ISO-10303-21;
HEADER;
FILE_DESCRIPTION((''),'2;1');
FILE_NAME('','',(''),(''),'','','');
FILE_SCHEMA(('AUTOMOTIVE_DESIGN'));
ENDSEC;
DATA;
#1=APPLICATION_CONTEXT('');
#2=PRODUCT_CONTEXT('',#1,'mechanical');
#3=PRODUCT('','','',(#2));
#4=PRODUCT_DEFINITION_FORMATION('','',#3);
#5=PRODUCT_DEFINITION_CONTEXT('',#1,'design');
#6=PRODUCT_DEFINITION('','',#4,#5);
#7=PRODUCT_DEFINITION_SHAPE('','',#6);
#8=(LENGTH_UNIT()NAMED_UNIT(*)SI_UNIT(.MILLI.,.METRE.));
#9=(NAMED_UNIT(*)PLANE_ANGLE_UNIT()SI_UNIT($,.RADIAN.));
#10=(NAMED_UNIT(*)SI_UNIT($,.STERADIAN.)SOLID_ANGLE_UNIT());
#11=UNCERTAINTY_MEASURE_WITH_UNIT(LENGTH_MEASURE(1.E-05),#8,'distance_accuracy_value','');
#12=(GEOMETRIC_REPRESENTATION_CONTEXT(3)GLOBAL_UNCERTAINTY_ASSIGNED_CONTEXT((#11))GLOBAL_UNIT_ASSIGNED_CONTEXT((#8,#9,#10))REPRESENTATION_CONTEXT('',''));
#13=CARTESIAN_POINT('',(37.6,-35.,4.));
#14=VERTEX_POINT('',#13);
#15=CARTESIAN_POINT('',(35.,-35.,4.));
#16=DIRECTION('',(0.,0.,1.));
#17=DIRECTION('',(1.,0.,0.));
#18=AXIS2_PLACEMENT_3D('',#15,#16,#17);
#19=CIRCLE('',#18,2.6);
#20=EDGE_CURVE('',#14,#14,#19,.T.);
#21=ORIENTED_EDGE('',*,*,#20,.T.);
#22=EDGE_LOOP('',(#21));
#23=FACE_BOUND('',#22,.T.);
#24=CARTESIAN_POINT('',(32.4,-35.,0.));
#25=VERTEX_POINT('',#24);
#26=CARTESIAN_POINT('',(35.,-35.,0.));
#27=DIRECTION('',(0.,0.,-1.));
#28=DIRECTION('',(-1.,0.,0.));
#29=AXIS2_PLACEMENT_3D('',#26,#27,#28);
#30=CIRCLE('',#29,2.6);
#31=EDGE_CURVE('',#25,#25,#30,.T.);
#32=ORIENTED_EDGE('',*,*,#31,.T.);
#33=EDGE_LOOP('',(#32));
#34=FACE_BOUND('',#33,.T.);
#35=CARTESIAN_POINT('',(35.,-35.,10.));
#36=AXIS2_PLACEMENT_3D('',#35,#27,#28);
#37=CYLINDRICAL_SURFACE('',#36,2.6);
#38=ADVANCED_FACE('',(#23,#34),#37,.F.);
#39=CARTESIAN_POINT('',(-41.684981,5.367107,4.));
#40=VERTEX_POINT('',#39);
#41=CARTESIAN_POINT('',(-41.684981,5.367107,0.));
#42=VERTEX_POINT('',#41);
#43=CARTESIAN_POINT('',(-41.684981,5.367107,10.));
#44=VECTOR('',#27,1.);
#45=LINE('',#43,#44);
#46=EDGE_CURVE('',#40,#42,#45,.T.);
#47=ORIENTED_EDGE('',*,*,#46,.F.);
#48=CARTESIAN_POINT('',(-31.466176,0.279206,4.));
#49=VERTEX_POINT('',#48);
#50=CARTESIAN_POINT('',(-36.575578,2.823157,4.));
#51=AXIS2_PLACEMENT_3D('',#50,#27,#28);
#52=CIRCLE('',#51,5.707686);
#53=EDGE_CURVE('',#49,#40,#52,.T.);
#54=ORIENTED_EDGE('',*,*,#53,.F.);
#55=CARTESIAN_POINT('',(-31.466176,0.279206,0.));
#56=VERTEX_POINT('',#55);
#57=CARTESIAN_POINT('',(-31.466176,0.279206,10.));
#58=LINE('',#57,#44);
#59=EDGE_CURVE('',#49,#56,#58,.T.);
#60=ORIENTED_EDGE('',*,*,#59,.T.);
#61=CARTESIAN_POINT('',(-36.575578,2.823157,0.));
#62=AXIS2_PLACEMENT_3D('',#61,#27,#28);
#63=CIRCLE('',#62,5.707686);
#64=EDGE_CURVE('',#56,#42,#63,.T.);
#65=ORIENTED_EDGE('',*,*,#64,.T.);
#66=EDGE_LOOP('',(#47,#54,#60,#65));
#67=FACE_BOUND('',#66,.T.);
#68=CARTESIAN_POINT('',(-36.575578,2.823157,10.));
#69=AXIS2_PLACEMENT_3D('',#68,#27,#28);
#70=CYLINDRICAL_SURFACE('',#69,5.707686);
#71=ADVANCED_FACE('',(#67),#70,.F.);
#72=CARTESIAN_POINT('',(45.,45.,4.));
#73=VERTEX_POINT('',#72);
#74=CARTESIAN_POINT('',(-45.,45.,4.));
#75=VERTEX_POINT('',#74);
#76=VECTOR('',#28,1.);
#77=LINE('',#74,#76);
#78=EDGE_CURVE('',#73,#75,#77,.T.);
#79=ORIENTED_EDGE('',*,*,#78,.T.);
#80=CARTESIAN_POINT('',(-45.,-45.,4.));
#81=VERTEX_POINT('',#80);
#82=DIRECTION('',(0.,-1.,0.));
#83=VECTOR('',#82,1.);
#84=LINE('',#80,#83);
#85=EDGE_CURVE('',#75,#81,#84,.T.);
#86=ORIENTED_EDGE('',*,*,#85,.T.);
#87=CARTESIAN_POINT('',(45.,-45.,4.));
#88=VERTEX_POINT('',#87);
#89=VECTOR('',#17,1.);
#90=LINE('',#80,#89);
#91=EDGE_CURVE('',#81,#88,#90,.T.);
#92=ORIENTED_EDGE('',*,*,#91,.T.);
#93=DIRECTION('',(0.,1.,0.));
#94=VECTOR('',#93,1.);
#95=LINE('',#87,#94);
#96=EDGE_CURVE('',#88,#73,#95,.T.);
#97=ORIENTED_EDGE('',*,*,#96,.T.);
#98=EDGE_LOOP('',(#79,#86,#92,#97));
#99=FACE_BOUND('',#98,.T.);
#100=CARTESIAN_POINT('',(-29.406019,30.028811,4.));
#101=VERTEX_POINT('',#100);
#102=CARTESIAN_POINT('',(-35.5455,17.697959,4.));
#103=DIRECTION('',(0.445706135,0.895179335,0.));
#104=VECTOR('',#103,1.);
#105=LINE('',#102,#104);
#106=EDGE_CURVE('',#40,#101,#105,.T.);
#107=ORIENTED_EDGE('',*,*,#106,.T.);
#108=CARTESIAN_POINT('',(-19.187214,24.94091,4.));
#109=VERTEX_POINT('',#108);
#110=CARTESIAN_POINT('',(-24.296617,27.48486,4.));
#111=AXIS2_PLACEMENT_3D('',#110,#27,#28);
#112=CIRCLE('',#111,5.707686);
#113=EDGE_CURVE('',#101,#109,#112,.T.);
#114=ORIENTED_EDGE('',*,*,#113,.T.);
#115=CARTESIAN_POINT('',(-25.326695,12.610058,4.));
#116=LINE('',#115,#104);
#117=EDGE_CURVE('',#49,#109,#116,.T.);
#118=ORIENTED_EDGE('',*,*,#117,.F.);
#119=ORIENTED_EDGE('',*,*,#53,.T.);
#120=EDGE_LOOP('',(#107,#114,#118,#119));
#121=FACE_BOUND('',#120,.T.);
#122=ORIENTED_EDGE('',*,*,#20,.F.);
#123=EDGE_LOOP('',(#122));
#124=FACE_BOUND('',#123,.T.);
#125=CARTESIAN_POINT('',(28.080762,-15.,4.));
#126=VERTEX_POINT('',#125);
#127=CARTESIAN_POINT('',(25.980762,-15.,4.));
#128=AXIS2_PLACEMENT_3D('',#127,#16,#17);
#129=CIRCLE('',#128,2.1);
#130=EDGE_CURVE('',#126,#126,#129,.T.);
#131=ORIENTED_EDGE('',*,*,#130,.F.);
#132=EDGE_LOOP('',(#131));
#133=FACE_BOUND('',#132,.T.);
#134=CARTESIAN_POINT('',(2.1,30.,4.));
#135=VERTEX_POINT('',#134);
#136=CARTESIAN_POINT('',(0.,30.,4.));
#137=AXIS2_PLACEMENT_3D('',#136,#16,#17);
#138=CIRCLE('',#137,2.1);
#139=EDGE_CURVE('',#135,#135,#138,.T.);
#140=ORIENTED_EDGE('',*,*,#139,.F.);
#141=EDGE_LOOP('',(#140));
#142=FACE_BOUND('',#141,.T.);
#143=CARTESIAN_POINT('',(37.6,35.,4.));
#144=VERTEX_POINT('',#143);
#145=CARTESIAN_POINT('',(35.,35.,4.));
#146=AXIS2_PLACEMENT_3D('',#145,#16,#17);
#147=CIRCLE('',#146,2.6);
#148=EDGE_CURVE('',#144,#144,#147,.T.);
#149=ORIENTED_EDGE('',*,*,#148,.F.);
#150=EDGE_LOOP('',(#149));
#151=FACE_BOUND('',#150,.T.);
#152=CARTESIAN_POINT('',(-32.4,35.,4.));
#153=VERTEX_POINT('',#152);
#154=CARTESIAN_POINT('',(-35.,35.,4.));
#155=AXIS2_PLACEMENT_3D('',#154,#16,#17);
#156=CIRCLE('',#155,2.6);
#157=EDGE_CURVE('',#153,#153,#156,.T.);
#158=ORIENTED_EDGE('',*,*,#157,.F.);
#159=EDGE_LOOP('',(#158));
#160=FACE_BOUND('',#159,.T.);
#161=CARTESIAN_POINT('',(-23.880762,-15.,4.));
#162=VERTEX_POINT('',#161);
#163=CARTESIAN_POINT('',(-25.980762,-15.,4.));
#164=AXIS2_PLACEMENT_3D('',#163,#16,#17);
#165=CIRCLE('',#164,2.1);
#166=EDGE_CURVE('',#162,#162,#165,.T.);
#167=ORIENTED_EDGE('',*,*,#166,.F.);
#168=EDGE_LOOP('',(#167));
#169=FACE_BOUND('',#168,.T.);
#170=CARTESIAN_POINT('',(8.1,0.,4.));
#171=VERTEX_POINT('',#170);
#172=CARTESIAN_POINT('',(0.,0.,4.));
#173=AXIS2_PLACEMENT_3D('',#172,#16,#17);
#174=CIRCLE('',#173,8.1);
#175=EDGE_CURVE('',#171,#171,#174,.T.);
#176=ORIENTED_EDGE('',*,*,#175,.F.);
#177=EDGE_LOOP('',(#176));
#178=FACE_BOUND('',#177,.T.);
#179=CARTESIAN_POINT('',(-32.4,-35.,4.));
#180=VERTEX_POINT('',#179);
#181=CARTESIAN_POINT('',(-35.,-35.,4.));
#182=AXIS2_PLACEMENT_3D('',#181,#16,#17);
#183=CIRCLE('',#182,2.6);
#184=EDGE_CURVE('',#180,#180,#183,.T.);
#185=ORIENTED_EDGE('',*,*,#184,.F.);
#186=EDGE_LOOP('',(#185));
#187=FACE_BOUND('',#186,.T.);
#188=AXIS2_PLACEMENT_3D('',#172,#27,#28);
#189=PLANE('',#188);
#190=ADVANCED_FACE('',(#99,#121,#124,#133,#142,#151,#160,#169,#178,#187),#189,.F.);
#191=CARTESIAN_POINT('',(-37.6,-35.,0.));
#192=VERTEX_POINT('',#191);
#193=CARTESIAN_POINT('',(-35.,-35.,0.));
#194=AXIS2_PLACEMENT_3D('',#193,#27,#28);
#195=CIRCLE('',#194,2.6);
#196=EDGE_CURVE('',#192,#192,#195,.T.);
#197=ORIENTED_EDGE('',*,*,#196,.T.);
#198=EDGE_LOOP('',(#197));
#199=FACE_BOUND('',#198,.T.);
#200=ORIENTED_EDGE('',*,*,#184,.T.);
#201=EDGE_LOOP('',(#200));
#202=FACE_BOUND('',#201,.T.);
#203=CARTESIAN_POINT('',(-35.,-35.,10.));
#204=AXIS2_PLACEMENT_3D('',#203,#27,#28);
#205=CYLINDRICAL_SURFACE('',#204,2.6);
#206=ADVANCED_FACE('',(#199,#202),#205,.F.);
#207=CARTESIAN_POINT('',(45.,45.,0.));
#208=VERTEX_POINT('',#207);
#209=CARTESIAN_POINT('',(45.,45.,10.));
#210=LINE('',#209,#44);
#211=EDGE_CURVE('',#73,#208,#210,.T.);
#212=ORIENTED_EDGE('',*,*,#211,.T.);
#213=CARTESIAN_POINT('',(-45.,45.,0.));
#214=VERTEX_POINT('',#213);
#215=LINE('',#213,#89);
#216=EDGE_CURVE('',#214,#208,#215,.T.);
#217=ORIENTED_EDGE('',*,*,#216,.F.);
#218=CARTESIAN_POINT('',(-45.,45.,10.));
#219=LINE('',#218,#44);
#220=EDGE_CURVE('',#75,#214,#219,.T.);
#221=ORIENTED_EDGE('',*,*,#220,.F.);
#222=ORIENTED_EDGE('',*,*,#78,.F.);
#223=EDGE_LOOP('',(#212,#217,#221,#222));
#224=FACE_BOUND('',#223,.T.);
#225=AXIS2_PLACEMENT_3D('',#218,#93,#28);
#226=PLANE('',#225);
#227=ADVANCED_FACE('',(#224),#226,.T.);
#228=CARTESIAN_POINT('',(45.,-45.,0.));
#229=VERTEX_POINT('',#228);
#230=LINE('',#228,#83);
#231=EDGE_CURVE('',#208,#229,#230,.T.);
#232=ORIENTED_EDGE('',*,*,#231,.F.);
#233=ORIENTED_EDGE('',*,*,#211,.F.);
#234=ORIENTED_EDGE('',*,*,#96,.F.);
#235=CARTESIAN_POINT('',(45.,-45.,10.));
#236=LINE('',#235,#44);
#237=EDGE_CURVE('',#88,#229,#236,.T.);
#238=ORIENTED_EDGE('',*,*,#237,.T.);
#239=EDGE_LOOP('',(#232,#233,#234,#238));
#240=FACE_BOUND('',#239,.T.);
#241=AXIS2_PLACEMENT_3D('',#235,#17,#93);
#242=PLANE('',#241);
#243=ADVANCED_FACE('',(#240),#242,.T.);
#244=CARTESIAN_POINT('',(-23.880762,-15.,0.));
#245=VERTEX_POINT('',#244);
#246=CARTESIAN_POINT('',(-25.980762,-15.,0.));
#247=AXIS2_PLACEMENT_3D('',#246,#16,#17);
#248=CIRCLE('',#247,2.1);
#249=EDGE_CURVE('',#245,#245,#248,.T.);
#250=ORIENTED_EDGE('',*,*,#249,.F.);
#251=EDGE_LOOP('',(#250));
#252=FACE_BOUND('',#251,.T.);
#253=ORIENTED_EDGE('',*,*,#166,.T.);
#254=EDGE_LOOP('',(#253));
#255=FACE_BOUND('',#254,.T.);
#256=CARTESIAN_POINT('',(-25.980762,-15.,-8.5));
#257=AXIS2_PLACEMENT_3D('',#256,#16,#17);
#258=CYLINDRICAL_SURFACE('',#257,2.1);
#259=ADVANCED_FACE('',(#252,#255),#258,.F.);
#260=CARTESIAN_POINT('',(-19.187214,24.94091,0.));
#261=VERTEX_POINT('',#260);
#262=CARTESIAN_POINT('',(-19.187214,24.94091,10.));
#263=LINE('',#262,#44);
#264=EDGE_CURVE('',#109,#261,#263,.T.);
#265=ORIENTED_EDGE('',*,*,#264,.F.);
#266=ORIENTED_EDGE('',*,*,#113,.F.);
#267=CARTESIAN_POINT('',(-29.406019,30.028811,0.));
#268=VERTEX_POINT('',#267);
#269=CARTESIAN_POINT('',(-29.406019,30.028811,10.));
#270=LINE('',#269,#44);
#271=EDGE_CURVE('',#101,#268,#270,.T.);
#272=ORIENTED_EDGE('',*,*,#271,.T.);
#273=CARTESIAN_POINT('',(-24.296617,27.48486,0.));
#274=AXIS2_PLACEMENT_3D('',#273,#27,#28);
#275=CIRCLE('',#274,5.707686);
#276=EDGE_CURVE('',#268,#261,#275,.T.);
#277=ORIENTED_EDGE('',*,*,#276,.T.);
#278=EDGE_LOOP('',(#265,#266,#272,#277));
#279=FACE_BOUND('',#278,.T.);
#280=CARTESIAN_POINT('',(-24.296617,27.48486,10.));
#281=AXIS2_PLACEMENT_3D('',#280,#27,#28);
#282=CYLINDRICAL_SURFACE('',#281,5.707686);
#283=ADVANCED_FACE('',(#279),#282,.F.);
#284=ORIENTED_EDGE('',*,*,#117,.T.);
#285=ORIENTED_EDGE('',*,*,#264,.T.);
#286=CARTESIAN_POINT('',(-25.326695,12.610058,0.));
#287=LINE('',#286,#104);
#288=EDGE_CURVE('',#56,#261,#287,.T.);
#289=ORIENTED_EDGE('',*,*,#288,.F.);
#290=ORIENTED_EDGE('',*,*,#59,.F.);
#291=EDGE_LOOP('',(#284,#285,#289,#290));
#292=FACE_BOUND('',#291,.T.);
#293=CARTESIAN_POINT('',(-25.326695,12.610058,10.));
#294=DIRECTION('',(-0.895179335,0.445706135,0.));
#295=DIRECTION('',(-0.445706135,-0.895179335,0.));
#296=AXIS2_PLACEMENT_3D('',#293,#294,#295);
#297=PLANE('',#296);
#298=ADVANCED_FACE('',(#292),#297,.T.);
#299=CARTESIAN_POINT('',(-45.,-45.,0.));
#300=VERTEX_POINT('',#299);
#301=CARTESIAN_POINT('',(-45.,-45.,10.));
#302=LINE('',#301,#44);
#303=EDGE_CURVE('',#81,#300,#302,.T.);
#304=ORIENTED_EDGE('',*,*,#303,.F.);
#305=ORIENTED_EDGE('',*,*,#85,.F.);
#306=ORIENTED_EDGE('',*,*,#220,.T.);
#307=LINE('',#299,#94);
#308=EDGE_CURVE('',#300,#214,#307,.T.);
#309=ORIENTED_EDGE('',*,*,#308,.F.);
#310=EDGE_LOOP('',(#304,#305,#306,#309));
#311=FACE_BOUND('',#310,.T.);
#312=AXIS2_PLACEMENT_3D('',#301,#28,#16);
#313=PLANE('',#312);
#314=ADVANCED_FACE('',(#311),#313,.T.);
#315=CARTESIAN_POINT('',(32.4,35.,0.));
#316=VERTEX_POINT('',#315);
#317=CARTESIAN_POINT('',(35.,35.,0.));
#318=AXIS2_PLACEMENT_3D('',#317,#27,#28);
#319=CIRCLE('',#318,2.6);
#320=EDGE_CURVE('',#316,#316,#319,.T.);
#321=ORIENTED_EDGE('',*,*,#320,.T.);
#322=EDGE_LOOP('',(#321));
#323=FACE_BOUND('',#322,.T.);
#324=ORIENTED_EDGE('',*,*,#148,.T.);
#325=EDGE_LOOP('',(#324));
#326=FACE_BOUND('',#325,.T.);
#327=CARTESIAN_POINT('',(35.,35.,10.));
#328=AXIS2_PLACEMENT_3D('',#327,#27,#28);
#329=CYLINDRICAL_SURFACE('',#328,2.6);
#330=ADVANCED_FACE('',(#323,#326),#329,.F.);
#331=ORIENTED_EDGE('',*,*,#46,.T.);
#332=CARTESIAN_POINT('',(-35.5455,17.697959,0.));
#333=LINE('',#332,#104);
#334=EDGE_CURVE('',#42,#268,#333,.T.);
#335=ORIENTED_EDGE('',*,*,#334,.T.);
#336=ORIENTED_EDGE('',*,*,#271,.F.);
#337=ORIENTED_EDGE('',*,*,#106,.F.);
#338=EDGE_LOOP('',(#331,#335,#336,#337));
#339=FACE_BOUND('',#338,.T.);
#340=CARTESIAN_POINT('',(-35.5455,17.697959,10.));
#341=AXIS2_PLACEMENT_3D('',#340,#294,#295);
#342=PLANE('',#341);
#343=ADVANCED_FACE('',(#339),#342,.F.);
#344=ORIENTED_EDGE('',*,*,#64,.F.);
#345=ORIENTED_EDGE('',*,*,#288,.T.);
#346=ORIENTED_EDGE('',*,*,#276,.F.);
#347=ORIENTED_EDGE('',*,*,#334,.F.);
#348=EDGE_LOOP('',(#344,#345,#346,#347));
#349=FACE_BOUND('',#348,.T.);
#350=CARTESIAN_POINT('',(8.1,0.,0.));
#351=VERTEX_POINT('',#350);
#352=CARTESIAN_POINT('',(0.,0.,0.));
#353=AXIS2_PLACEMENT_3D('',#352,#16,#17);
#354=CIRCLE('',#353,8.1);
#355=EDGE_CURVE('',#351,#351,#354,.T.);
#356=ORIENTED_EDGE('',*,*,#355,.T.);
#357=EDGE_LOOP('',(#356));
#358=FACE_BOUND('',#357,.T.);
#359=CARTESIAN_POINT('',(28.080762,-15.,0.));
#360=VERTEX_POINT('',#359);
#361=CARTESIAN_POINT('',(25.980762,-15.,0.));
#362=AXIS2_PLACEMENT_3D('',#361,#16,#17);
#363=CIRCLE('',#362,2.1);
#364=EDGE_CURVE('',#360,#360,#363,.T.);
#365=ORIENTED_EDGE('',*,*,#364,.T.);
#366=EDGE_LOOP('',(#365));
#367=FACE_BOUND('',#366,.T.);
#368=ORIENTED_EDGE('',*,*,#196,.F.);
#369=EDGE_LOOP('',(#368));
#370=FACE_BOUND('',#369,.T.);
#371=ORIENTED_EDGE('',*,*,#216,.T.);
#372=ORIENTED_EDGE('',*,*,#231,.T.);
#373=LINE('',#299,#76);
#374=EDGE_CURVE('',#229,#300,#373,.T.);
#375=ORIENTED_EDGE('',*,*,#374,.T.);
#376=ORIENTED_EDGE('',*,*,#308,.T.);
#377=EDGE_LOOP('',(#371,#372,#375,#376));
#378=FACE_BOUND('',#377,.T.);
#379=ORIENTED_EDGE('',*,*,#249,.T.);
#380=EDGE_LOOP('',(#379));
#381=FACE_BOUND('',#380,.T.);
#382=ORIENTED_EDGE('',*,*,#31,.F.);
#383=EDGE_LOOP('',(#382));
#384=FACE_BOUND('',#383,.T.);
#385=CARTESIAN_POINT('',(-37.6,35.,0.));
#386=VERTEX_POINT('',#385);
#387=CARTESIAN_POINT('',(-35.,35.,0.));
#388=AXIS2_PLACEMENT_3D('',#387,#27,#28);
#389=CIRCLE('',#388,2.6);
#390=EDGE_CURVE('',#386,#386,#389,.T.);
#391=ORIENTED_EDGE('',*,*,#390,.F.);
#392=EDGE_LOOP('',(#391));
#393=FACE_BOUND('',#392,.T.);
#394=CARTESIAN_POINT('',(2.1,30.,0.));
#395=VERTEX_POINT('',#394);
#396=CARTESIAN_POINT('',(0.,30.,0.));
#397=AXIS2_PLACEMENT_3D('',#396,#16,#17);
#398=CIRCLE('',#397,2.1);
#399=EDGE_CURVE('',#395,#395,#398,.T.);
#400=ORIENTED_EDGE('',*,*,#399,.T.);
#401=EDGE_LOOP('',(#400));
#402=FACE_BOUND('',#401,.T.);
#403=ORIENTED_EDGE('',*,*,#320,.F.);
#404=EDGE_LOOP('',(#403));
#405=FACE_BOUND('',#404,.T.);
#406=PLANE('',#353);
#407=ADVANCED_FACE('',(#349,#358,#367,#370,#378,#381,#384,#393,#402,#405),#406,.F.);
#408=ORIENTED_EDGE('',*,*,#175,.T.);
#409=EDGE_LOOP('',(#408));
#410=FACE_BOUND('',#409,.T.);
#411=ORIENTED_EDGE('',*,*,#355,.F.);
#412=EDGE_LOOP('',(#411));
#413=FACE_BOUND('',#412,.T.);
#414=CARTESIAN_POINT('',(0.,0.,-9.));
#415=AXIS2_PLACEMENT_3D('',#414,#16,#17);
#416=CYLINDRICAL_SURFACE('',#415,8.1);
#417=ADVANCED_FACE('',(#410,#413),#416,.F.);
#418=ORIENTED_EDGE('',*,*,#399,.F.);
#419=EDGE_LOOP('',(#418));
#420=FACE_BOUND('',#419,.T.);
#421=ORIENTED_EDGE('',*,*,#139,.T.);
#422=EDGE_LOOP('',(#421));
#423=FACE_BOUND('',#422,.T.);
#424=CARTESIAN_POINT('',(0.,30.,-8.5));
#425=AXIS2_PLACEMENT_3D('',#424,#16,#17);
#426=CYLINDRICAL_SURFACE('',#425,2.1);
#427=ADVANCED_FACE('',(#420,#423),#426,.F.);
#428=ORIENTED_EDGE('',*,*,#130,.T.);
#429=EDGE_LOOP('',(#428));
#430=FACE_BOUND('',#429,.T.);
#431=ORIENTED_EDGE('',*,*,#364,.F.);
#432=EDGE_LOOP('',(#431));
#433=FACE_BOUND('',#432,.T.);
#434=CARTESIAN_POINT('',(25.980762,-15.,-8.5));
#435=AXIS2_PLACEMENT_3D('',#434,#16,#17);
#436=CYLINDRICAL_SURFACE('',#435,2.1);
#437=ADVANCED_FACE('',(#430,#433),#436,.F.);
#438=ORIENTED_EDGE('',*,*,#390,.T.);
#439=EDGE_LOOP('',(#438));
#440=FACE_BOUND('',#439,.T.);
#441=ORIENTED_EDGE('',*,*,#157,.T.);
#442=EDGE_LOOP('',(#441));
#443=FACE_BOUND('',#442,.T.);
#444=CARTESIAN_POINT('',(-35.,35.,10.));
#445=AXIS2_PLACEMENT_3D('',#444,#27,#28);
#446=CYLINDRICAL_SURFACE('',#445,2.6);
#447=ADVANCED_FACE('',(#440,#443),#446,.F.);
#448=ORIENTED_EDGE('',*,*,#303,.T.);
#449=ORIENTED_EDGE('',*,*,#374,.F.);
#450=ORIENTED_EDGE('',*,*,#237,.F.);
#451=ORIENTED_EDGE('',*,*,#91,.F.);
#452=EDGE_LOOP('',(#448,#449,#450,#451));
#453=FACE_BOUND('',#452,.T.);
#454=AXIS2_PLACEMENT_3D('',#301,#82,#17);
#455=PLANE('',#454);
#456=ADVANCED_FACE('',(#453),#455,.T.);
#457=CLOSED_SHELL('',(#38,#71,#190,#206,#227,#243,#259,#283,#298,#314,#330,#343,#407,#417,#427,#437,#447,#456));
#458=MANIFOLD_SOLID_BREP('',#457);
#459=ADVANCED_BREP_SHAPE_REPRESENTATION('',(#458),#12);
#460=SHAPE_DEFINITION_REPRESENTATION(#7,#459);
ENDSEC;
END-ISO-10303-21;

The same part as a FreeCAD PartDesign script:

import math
import FreeCAD as App
import Part
import Sketcher
Q = App.Units.Quantity

doc = App.newDocument("Part")
body = doc.addObject("PartDesign::Body", "Body")

sketch1 = body.newObject("Sketcher::SketchObject", "Sketch")
sketch1.AttachmentSupport = (doc.getObject("XY_Plane"), [""])
sketch1.MapMode = "FlatFace"
sketch1.addGeometry([
    Part.LineSegment(App.Vector(-40, 40, 0), App.Vector(-40, -40, 0)),
    Part.LineSegment(App.Vector(-40, -40, 0), App.Vector(40, -40, 0)),
    Part.LineSegment(App.Vector(40, -40, 0), App.Vector(40, 40, 0)),
    Part.LineSegment(App.Vector(40, 40, 0), App.Vector(-40, 40, 0)),
    Part.Circle(App.Vector(-33, -33, 0), App.Vector(0, 0, 1), 2.5),
    Part.Circle(App.Vector(33, -30.5, 0), App.Vector(0, 0, 1), 2.5),
    Part.Circle(App.Vector(-33, 33, 0), App.Vector(0, 0, 1), 2.5),
    Part.Circle(App.Vector(0, 0, 0), App.Vector(0, 0, 1), 8),
    Part.Circle(App.Vector(33, 33, 0), App.Vector(0, 0, 1), 2.5),
], False)
sketch1.addConstraint([
    Sketcher.Constraint("Coincident", 0, 2, 1, 1),
    Sketcher.Constraint("Coincident", 1, 2, 2, 1),
    Sketcher.Constraint("Coincident", 2, 2, 3, 1),
    Sketcher.Constraint("Coincident", 3, 2, 0, 1),
    Sketcher.Constraint("Vertical", 0),
    Sketcher.Constraint("Horizontal", 1),
    Sketcher.Constraint("Vertical", 2),
    Sketcher.Constraint("Horizontal", 3),
    Sketcher.Constraint("Coincident", 7, 3, -1, 1),
    Sketcher.Constraint("Equal", 4, 5),
    Sketcher.Constraint("Equal", 5, 6),
    Sketcher.Constraint("Equal", 6, 8),
    Sketcher.Constraint("Symmetric", 4, 3, 8, 3, -1, 1),
    Sketcher.Constraint("Symmetric", 0, 2, 2, 2, -1, 1),
    Sketcher.Constraint("Symmetric", 6, 3, 8, 3, -2),
    Sketcher.Constraint("Vertical", 5, 3, 8, 3),
    Sketcher.Constraint("Equal", 3, 0),
    Sketcher.Constraint("Diameter", 4, Q("5 mm")),
    Sketcher.Constraint("Diameter", 7, Q("16 mm")),
    Sketcher.Constraint("DistanceX", 1, 1, 1, 2, Q("80 mm")),
    Sketcher.Constraint("DistanceX", 4, 3, -1, 1, Q("33 mm")),
    Sketcher.Constraint("DistanceY", 4, 3, -1, 1, Q("33 mm")),
    Sketcher.Constraint("DistanceY", 5, 3, -1, 1, Q("30.5 mm")),
])
pad1 = body.newObject("PartDesign::Pad", "Pad")
pad1.Profile = sketch1
pad1.Length = 2

sketch2 = body.newObject("Sketcher::SketchObject", "Sketch001")
sketch2.AttachmentSupport = (doc.getObject("XY_Plane"), [""])
sketch2.MapMode = "FlatFace"
sketch2.AttachmentOffset = App.Placement(App.Vector(0, 0, 2), App.Rotation())
sketch2.addGeometry(Part.Circle(App.Vector(0, 0, 0), App.Vector(0, 0, 1), 34), False)
sketch2.addConstraint([
    Sketcher.Constraint("Coincident", 0, 3, -1, 1),
    Sketcher.Constraint("Diameter", 0, Q("68 mm")),
])
pocket1 = body.newObject("PartDesign::Pocket", "Pocket")
pocket1.Profile = sketch2
pocket1.Length = 0.5

sketch3 = body.newObject("Sketcher::SketchObject", "Sketch002")
sketch3.AttachmentSupport = (doc.getObject("XY_Plane"), [""])
sketch3.MapMode = "FlatFace"
sketch3.AttachmentOffset = App.Placement(App.Vector(0, 0, 1.5), App.Rotation())
sketch3.addGeometry([
    Part.Circle(App.Vector(0, 30, 0), App.Vector(0, 0, 1), 2),
    Part.Circle(App.Vector(25.980762, -15, 0), App.Vector(0, 0, 1), 2),
    Part.Circle(App.Vector(-25.980762, -15, 0), App.Vector(0, 0, 1), 2),
], False)
sketch3.addConstraint([
    Sketcher.Constraint("Equal", 0, 1),
    Sketcher.Constraint("Equal", 1, 2),
    Sketcher.Constraint("Symmetric", 1, 3, 2, 3, -2),
    Sketcher.Constraint("PointOnObject", 0, 3, -2),
    Sketcher.Constraint("Diameter", 0, Q("4 mm")),
    Sketcher.Constraint("DistanceY", -1, 1, 0, 3, Q("30 mm")),
    Sketcher.Constraint("DistanceY", 1, 3, -1, 1, Q("15 mm")),
    Sketcher.Constraint("DistanceX", -1, 1, 1, 3, Q("25.980762 mm")),
])
pocket2 = body.newObject("PartDesign::Pocket", "Pocket001")
pocket2.Profile = sketch3
pocket2.Length = 28.5

sketch4 = body.newObject("Sketcher::SketchObject", "Sketch003")
sketch4.AttachmentSupport = (doc.getObject("XY_Plane"), [""])
sketch4.MapMode = "FlatFace"
sketch4.AttachmentOffset = App.Placement(App.Vector(0, 0, 1.5), App.Rotation())
sketch4.addGeometry([
    Part.Circle(App.Vector(25.980762, -15, 0), App.Vector(0, 0, 1), 2.1),
    Part.Circle(App.Vector(0, 30, 0), App.Vector(0, 0, 1), 2.1),
    Part.Circle(App.Vector(-25.980762, -15, 0), App.Vector(0, 0, 1), 2.1),
], False)
sketch4.addConstraint([
    Sketcher.Constraint("Equal", 0, 1),
    Sketcher.Constraint("Equal", 1, 2),
    Sketcher.Constraint("Symmetric", 0, 3, 2, 3, -2),
    Sketcher.Constraint("PointOnObject", 1, 3, -2),
    Sketcher.Constraint("Diameter", 0, Q("4.2 mm")),
    Sketcher.Constraint("DistanceY", 0, 3, -1, 1, Q("15 mm")),
    Sketcher.Constraint("DistanceY", -1, 1, 1, 3, Q("30 mm")),
    Sketcher.Constraint("DistanceX", -1, 1, 0, 3, Q("25.980762 mm")),
])
pocket3 = body.newObject("PartDesign::Pocket", "Pocket002")
pocket3.Profile = sketch4
pocket3.Length = 10

sketch5 = body.newObject("Sketcher::SketchObject", "Sketch004")
sketch5.AttachmentSupport = (doc.getObject("XY_Plane"), [""])
sketch5.MapMode = "FlatFace"
sketch5.AttachmentOffset = App.Placement(App.Vector(0, 0, 2), App.Rotation())
sketch5.addGeometry([
    Part.Circle(App.Vector(-33, 33, 0), App.Vector(0, 0, 1), 2.6),
    Part.Circle(App.Vector(33, 33, 0), App.Vector(0, 0, 1), 2.6),
    Part.Circle(App.Vector(33, -30.5, 0), App.Vector(0, 0, 1), 2.6),
    Part.Circle(App.Vector(-33, -33, 0), App.Vector(0, 0, 1), 2.6),
], False)
sketch5.addConstraint([
    Sketcher.Constraint("Equal", 0, 1),
    Sketcher.Constraint("Equal", 1, 2),
    Sketcher.Constraint("Equal", 2, 3),
    Sketcher.Constraint("Symmetric", 1, 3, 3, 3, -1, 1),
    Sketcher.Constraint("Symmetric", 0, 3, 1, 3, -2),
    Sketcher.Constraint("Vertical", 1, 3, 2, 3),
    Sketcher.Constraint("Diameter", 0, Q("5.2 mm")),
    Sketcher.Constraint("DistanceX", 0, 3, -1, 1, Q("33 mm")),
    Sketcher.Constraint("DistanceY", -1, 1, 0, 3, Q("33 mm")),
    Sketcher.Constraint("DistanceY", 2, 3, -1, 1, Q("30.5 mm")),
])
pocket4 = body.newObject("PartDesign::Pocket", "Pocket003")
pocket4.Profile = sketch5
pocket4.Length = 10

sketch6 = body.newObject("Sketcher::SketchObject", "Sketch005")
sketch6.AttachmentSupport = (doc.getObject("XY_Plane"), [""])
sketch6.MapMode = "FlatFace"
sketch6.addGeometry([
    Part.LineSegment(App.Vector(62.5, 62.5, 0), App.Vector(62.5, -62.5, 0)),
    Part.LineSegment(App.Vector(62.5, -62.5, 0), App.Vector(-62.5, -62.5, 0)),
    Part.LineSegment(App.Vector(-62.5, -62.5, 0), App.Vector(-62.5, 62.5, 0)),
    Part.LineSegment(App.Vector(-62.5, 62.5, 0), App.Vector(62.5, 62.5, 0)),
    Part.LineSegment(App.Vector(-40, -40, 0), App.Vector(40, -40, 0)),
    Part.LineSegment(App.Vector(40, -40, 0), App.Vector(40, 40, 0)),
    Part.LineSegment(App.Vector(40, 40, 0), App.Vector(-40, 40, 0)),
    Part.LineSegment(App.Vector(-40, 40, 0), App.Vector(-40, -40, 0)),
], False)
sketch6.addConstraint([
    Sketcher.Constraint("Coincident", 0, 2, 1, 1),
    Sketcher.Constraint("Coincident", 1, 2, 2, 1),
    Sketcher.Constraint("Coincident", 2, 2, 3, 1),
    Sketcher.Constraint("Coincident", 3, 2, 0, 1),
    Sketcher.Constraint("Coincident", 4, 2, 5, 1),
    Sketcher.Constraint("Coincident", 5, 2, 6, 1),
    Sketcher.Constraint("Coincident", 6, 2, 7, 1),
    Sketcher.Constraint("Coincident", 7, 2, 4, 1),
    Sketcher.Constraint("Vertical", 0),
    Sketcher.Constraint("Horizontal", 1),
    Sketcher.Constraint("Vertical", 2),
    Sketcher.Constraint("Horizontal", 3),
    Sketcher.Constraint("Horizontal", 4),
    Sketcher.Constraint("Vertical", 5),
    Sketcher.Constraint("Horizontal", 6),
    Sketcher.Constraint("Vertical", 7),
    Sketcher.Constraint("Symmetric", 0, 2, 2, 2, -1, 1),
    Sketcher.Constraint("Symmetric", 4, 2, 6, 2, -1, 1),
    Sketcher.Constraint("Equal", 3, 0),
    Sketcher.Constraint("Equal", 6, 5),
    Sketcher.Constraint("DistanceX", 1, 2, 1, 1, Q("125 mm")),
    Sketcher.Constraint("DistanceX", 4, 1, 4, 2, Q("80 mm")),
])
pad2 = body.newObject("PartDesign::Pad", "Pad001")
pad2.Profile = sketch6
pad2.Length = 2

sketch7 = body.newObject("Sketcher::SketchObject", "Sketch006")
sketch7.AttachmentSupport = (doc.getObject("XY_Plane"), [""])
sketch7.MapMode = "FlatFace"
sketch7.addGeometry(Part.Circle(App.Vector(33, -30.5, 0), App.Vector(0, 0, 1), 2.760888), False)
sketch7.addConstraint([
    Sketcher.Constraint("DistanceX", -1, 1, 0, 3, Q("33 mm")),
    Sketcher.Constraint("DistanceY", 0, 3, -1, 1, Q("30.5 mm")),
    Sketcher.Constraint("Diameter", 0, Q("5.521776 mm")),
])
pad3 = body.newObject("PartDesign::Pad", "Pad002")
pad3.Profile = sketch7
pad3.Length = 2

sketch8 = body.newObject("Sketcher::SketchObject", "Sketch007")
sketch8.AttachmentSupport = (doc.getObject("XY_Plane"), [""])
sketch8.MapMode = "FlatFace"
sketch8.addGeometry(Part.Circle(App.Vector(33, -34.063377, 0), App.Vector(0, 0, 1), 2.6), False)
sketch8.addConstraint([
    Sketcher.Constraint("Diameter", 0, Q("5.2 mm")),
    Sketcher.Constraint("DistanceX", -1, 1, 0, 3, Q("33 mm")),
    Sketcher.Constraint("DistanceY", 0, 3, -1, 1, Q("34.063377 mm")),
])
pocket5 = body.newObject("PartDesign::Pocket", "Pocket004")
pocket5.Profile = sketch8
pocket5.Length = 2
pocket5.Reversed = True

sketch9 = body.newObject("Sketcher::SketchObject", "Sketch008")
sketch9.AttachmentSupport = (doc.getObject("XY_Plane"), [""])
sketch9.MapMode = "FlatFace"
sketch9.addGeometry([
    Part.LineSegment(App.Vector(13.580084, -47.982964, 0), App.Vector(-13.580084, -47.982964, 0)),
    Part.ArcOfCircle(Part.Circle(App.Vector(-13.580084, -41.079754, 0), App.Vector(0, 0, 1), 6.903209), math.radians(90), math.radians(270)),
    Part.LineSegment(App.Vector(-13.580084, -34.176545, 0), App.Vector(13.580084, -34.176545, 0)),
    Part.ArcOfCircle(Part.Circle(App.Vector(13.580084, -41.079754, 0), App.Vector(0, 0, 1), 6.903209), math.radians(-90), math.radians(90)),
], False)
sketch9.addConstraint([
    Sketcher.Constraint("Tangent", 0, 2, 1, 2),
    Sketcher.Constraint("Tangent", 1, 1, 2, 1),
    Sketcher.Constraint("Tangent", 2, 2, 3, 2),
    Sketcher.Constraint("Tangent", 3, 1, 0, 1),
    Sketcher.Constraint("Horizontal", 0),
    Sketcher.Constraint("Horizontal", 2),
    Sketcher.Constraint("Radius", 1, Q("6.903209 mm")),
    Sketcher.Constraint("DistanceX", 0, 2, 0, 1, Q("27.160168 mm")),
    Sketcher.Constraint("DistanceX", 1, 3, -1, 1, Q("13.580084 mm")),
    Sketcher.Constraint("DistanceY", 1, 3, -1, 1, Q("41.079754 mm")),
])
pocket6 = body.newObject("PartDesign::Pocket", "Pocket005")
pocket6.Profile = sketch9
pocket6.Length = 2
pocket6.Reversed = True

sketch10 = body.newObject("Sketcher::SketchObject", "Sketch009")
sketch10.AttachmentSupport = (doc.getObject("XY_Plane"), [""])
sketch10.MapMode = "FlatFace"
sketch10.AttachmentOffset = App.Placement(App.Vector(0, 0, 2), App.Rotation())
sketch10.addGeometry([
    Part.LineSegment(App.Vector(125, 125, 0), App.Vector(125, -125, 0)),
    Part.LineSegment(App.Vector(125, -125, 0), App.Vector(-125, -125, 0)),
    Part.LineSegment(App.Vector(-125, -125, 0), App.Vector(-125, 125, 0)),
    Part.LineSegment(App.Vector(-125, 125, 0), App.Vector(125, 125, 0)),
    Part.Circle(App.Vector(25.980762, -15, 0), App.Vector(0, 0, 1), 2.1),
    Part.Circle(App.Vector(-25.980762, -15, 0), App.Vector(0, 0, 1), 2.1),
    Part.Circle(App.Vector(0, 0, 0), App.Vector(0, 0, 1), 8),
    Part.Circle(App.Vector(0, 30, 0), App.Vector(0, 0, 1), 2.1),
], False)
sketch10.addConstraint([
    Sketcher.Constraint("Coincident", 0, 2, 1, 1),
    Sketcher.Constraint("Coincident", 1, 2, 2, 1),
    Sketcher.Constraint("Coincident", 2, 2, 3, 1),
    Sketcher.Constraint("Coincident", 3, 2, 0, 1),
    Sketcher.Constraint("Vertical", 0),
    Sketcher.Constraint("Horizontal", 1),
    Sketcher.Constraint("Vertical", 2),
    Sketcher.Constraint("Horizontal", 3),
    Sketcher.Constraint("Coincident", 6, 3, -1, 1),
    Sketcher.Constraint("Equal", 4, 5),
    Sketcher.Constraint("Equal", 5, 7),
    Sketcher.Constraint("Symmetric", 0, 2, 2, 2, -1, 1),
    Sketcher.Constraint("Symmetric", 4, 3, 5, 3, -2),
    Sketcher.Constraint("PointOnObject", 7, 3, -2),
    Sketcher.Constraint("Equal", 3, 0),
    Sketcher.Constraint("Diameter", 6, Q("16 mm")),
    Sketcher.Constraint("Diameter", 4, Q("4.2 mm")),
    Sketcher.Constraint("DistanceX", 1, 2, 1, 1, Q("250 mm")),
    Sketcher.Constraint("DistanceY", 4, 3, -1, 1, Q("15 mm")),
    Sketcher.Constraint("DistanceY", -1, 1, 7, 3, Q("30 mm")),
    Sketcher.Constraint("DistanceX", -1, 1, 4, 3, Q("25.980762 mm")),
])
pad4 = body.newObject("PartDesign::Pad", "Pad003")
pad4.Profile = sketch10
pad4.Length = 2
pad4.Reversed = True

sketch11 = body.newObject("Sketcher::SketchObject", "Sketch010")
sketch11.AttachmentSupport = (doc.getObject("XY_Plane"), [""])
sketch11.MapMode = "FlatFace"
sketch11.addGeometry([
    Part.Circle(App.Vector(105, 105, 0), App.Vector(0, 0, 1), 2.6),
    Part.Circle(App.Vector(-105, 105, 0), App.Vector(0, 0, 1), 2.6),
    Part.Circle(App.Vector(105, -105, 0), App.Vector(0, 0, 1), 2.6),
    Part.Circle(App.Vector(-105, -98.771678, 0), App.Vector(0, 0, 1), 2.6),
], False)
sketch11.addConstraint([
    Sketcher.Constraint("Equal", 0, 1),
    Sketcher.Constraint("Equal", 1, 2),
    Sketcher.Constraint("Equal", 2, 3),
    Sketcher.Constraint("Symmetric", 1, 3, 2, 3, -1, 1),
    Sketcher.Constraint("Symmetric", 0, 3, 1, 3, -2),
    Sketcher.Constraint("Vertical", 1, 3, 3, 3),
    Sketcher.Constraint("Diameter", 0, Q("5.2 mm")),
    Sketcher.Constraint("DistanceX", -1, 1, 0, 3, Q("105 mm")),
    Sketcher.Constraint("DistanceY", -1, 1, 0, 3, Q("105 mm")),
    Sketcher.Constraint("DistanceY", 3, 3, -1, 1, Q("98.771678 mm")),
])
pocket7 = body.newObject("PartDesign::Pocket", "Pocket006")
pocket7.Profile = sketch11
pocket7.Length = 51
pocket7.Reversed = True

sketch12 = body.newObject("Sketcher::SketchObject", "Sketch011")
sketch12.AttachmentSupport = (doc.getObject("XY_Plane"), [""])
sketch12.MapMode = "FlatFace"
sketch12.AttachmentOffset = App.Placement(App.Vector(0, 0, 2), App.Rotation())
sketch12.addGeometry(Part.Circle(App.Vector(0, 0, 0), App.Vector(0, 0, 1), 34), False)
sketch12.addConstraint([
    Sketcher.Constraint("Coincident", 0, 3, -1, 1),
    Sketcher.Constraint("Diameter", 0, Q("68 mm")),
])
pocket8 = body.newObject("PartDesign::Pocket", "Pocket007")
pocket8.Profile = sketch12
pocket8.Length = 1

sketch13 = body.newObject("Sketcher::SketchObject", "Sketch012")
sketch13.AttachmentSupport = (doc.getObject("XY_Plane"), [""])
sketch13.MapMode = "FlatFace"
sketch13.addGeometry([
    Part.LineSegment(App.Vector(125, 125, 0), App.Vector(125, -125, 0)),
    Part.LineSegment(App.Vector(125, -125, 0), App.Vector(-125, -125, 0)),
    Part.LineSegment(App.Vector(-125, -125, 0), App.Vector(-125, 125, 0)),
    Part.LineSegment(App.Vector(-125, 125, 0), App.Vector(125, 125, 0)),
    Part.LineSegment(App.Vector(-45, -45, 0), App.Vector(45, -45, 0)),
    Part.LineSegment(App.Vector(45, -45, 0), App.Vector(45, 45, 0)),
    Part.LineSegment(App.Vector(45, 45, 0), App.Vector(-45, 45, 0)),
    Part.LineSegment(App.Vector(-45, 45, 0), App.Vector(-45, -45, 0)),
], False)
sketch13.addConstraint([
    Sketcher.Constraint("Coincident", 0, 2, 1, 1),
    Sketcher.Constraint("Coincident", 1, 2, 2, 1),
    Sketcher.Constraint("Coincident", 2, 2, 3, 1),
    Sketcher.Constraint("Coincident", 3, 2, 0, 1),
    Sketcher.Constraint("Coincident", 4, 2, 5, 1),
    Sketcher.Constraint("Coincident", 5, 2, 6, 1),
    Sketcher.Constraint("Coincident", 6, 2, 7, 1),
    Sketcher.Constraint("Coincident", 7, 2, 4, 1),
    Sketcher.Constraint("Vertical", 0),
    Sketcher.Constraint("Horizontal", 1),
    Sketcher.Constraint("Vertical", 2),
    Sketcher.Constraint("Horizontal", 3),
    Sketcher.Constraint("Horizontal", 4),
    Sketcher.Constraint("Vertical", 5),
    Sketcher.Constraint("Horizontal", 6),
    Sketcher.Constraint("Vertical", 7),
    Sketcher.Constraint("Symmetric", 0, 2, 2, 2, -1, 1),
    Sketcher.Constraint("Symmetric", 4, 2, 6, 2, -1, 1),
    Sketcher.Constraint("Equal", 3, 0),
    Sketcher.Constraint("Equal", 6, 5),
    Sketcher.Constraint("DistanceX", 1, 2, 1, 1, Q("250 mm")),
    Sketcher.Constraint("DistanceX", 4, 1, 4, 2, Q("90 mm")),
])
pocket9 = body.newObject("PartDesign::Pocket", "Pocket008")
pocket9.Profile = sketch13
pocket9.Length = 10
pocket9.Reversed = True

sketch14 = body.newObject("Sketcher::SketchObject", "Sketch013")
sketch14.AttachmentSupport = (doc.getObject("XY_Plane"), [""])
sketch14.MapMode = "FlatFace"
sketch14.addGeometry([
    Part.Circle(App.Vector(35, 35, 0), App.Vector(0, 0, 1), 2.6),
    Part.Circle(App.Vector(-35, 35, 0), App.Vector(0, 0, 1), 2.6),
    Part.Circle(App.Vector(-35, -35, 0), App.Vector(0, 0, 1), 2.6),
    Part.Circle(App.Vector(35, -35, 0), App.Vector(0, 0, 1), 2.6),
], False)
sketch14.addConstraint([
    Sketcher.Constraint("Equal", 0, 1),
    Sketcher.Constraint("Equal", 1, 2),
    Sketcher.Constraint("Equal", 2, 3),
    Sketcher.Constraint("Symmetric", 0, 3, 2, 3, -1, 1),
    Sketcher.Constraint("Symmetric", 1, 3, 3, 3, -1, 1),
    Sketcher.Constraint("Symmetric", 0, 3, 1, 3, -2),
    Sketcher.Constraint("Diameter", 0, Q("5.2 mm")),
    Sketcher.Constraint("DistanceX", -1, 1, 0, 3, Q("35 mm")),
    Sketcher.Constraint("DistanceY", -1, 1, 0, 3, Q("35 mm")),
])
pocket10 = body.newObject("PartDesign::Pocket", "Pocket009")
pocket10.Profile = sketch14
pocket10.Length = 10
pocket10.Reversed = True

sketch15 = body.newObject("Sketcher::SketchObject", "Sketch014")
sketch15.AttachmentSupport = (doc.getObject("XY_Plane"), [""])
sketch15.MapMode = "FlatFace"
sketch15.AttachmentOffset = App.Placement(App.Vector(0, 0, 1), App.Rotation())
sketch15.addGeometry(Part.Circle(App.Vector(0, 0, 0), App.Vector(0, 0, 1), 8.1), False)
sketch15.addConstraint([
    Sketcher.Constraint("Coincident", 0, 3, -1, 1),
    Sketcher.Constraint("Diameter", 0, Q("16.2 mm")),
])
pocket11 = body.newObject("PartDesign::Pocket", "Pocket010")
pocket11.Profile = sketch15
pocket11.Length = 10

sketch16 = body.newObject("Sketcher::SketchObject", "Sketch015")
sketch16.AttachmentSupport = (doc.getObject("XY_Plane"), [""])
sketch16.MapMode = "FlatFace"
sketch16.AttachmentOffset = App.Placement(App.Vector(0, 0, 2), App.Rotation())
sketch16.addGeometry(Part.Circle(App.Vector(0, 0, 0), App.Vector(0, 0, 1), 34.1), False)
sketch16.addConstraint([
    Sketcher.Constraint("Coincident", 0, 3, -1, 1),
    Sketcher.Constraint("Diameter", 0, Q("68.2 mm")),
])
pocket12 = body.newObject("PartDesign::Pocket", "Pocket011")
pocket12.Profile = sketch16
pocket12.Length = 1

sketch17 = body.newObject("Sketcher::SketchObject", "Sketch016")
sketch17.AttachmentSupport = (doc.getObject("XY_Plane"), [""])
sketch17.MapMode = "FlatFace"
sketch17.AttachmentOffset = App.Placement(App.Vector(0, 0, 2), App.Rotation())
sketch17.addGeometry([
    Part.Circle(App.Vector(0, 0, 0), App.Vector(0, 0, 1), 34.1),
    Part.Circle(App.Vector(-25.980762, -15, 0), App.Vector(0, 0, 1), 2.1),
    Part.Circle(App.Vector(25.980762, -15, 0), App.Vector(0, 0, 1), 2.1),
    Part.Circle(App.Vector(0, 0, 0), App.Vector(0, 0, 1), 8.1),
    Part.Circle(App.Vector(0, 30, 0), App.Vector(0, 0, 1), 2.1),
], False)
sketch17.addConstraint([
    Sketcher.Constraint("Coincident", 0, 3, -1, 1),
    Sketcher.Constraint("Coincident", 3, 3, -1, 1),
    Sketcher.Constraint("Equal", 1, 2),
    Sketcher.Constraint("Equal", 2, 4),
    Sketcher.Constraint("Symmetric", 1, 3, 2, 3, -2),
    Sketcher.Constraint("PointOnObject", 4, 3, -2),
    Sketcher.Constraint("Diameter", 0, Q("68.2 mm")),
    Sketcher.Constraint("Diameter", 1, Q("4.2 mm")),
    Sketcher.Constraint("Diameter", 3, Q("16.2 mm")),
    Sketcher.Constraint("DistanceY", 1, 3, -1, 1, Q("15 mm")),
    Sketcher.Constraint("DistanceY", -1, 1, 4, 3, Q("30 mm")),
    Sketcher.Constraint("DistanceX", 1, 3, -1, 1, Q("25.980762 mm")),
])
pad5 = body.newObject("PartDesign::Pad", "Pad004")
pad5.Profile = sketch17
pad5.Length = 1
pad5.Reversed = True

sketch18 = body.newObject("Sketcher::SketchObject", "Sketch017")
sketch18.AttachmentSupport = (doc.getObject("XY_Plane"), [""])
sketch18.MapMode = "FlatFace"
sketch18.addGeometry([
    Part.LineSegment(App.Vector(25.460403, 24.557275, 0), App.Vector(34.258799, 10.195171, 0)),
    Part.ArcOfCircle(Part.Circle(App.Vector(30.37996, 7.818948, 0), App.Vector(0, 0, 1), 4.548827), math.radians(-148.507866), math.radians(31.492134)),
    Part.LineSegment(App.Vector(26.501121, 5.442725, 0), App.Vector(17.702725, 19.804829, 0)),
    Part.ArcOfCircle(Part.Circle(App.Vector(21.581564, 22.181052, 0), App.Vector(0, 0, 1), 4.548827), math.radians(31.492134), math.radians(211.492134)),
], False)
sketch18.addConstraint([
    Sketcher.Constraint("Tangent", 0, 2, 1, 2),
    Sketcher.Constraint("Tangent", 1, 1, 2, 1),
    Sketcher.Constraint("Tangent", 2, 2, 3, 2),
    Sketcher.Constraint("Tangent", 3, 1, 0, 1),
    Sketcher.Constraint("Equal", 1, 3),
    Sketcher.Constraint("Radius", 1, Q("4.548827 mm")),
    Sketcher.Constraint("DistanceX", -1, 1, 0, 2, Q("34.258799 mm")),
    Sketcher.Constraint("DistanceX", -1, 1, 1, 3, Q("30.37996 mm")),
    Sketcher.Constraint("DistanceY", -1, 1, 1, 3, Q("7.818948 mm")),
    Sketcher.Constraint("DistanceY", -1, 1, 3, 3, Q("22.181052 mm")),
])
pocket13 = body.newObject("PartDesign::Pocket", "Pocket012")
pocket13.Profile = sketch18
pocket13.Length = 10
pocket13.Reversed = True

sketch19 = body.newObject("Sketcher::SketchObject", "Sketch018")
sketch19.AttachmentSupport = (doc.getObject("XY_Plane"), [""])
sketch19.MapMode = "FlatFace"
sketch19.addGeometry([
    Part.LineSegment(App.Vector(-45, 45, 0), App.Vector(-45, -45, 0)),
    Part.LineSegment(App.Vector(-45, -45, 0), App.Vector(45, -45, 0)),
    Part.LineSegment(App.Vector(45, -45, 0), App.Vector(45, 45, 0)),
    Part.LineSegment(App.Vector(45, 45, 0), App.Vector(-45, 45, 0)),
    Part.Circle(App.Vector(-35, -35, 0), App.Vector(0, 0, 1), 2.6),
    Part.Circle(App.Vector(-25.980762, -15, 0), App.Vector(0, 0, 1), 2.1),
    Part.Circle(App.Vector(35, -35, 0), App.Vector(0, 0, 1), 2.6),
    Part.Circle(App.Vector(25.980762, -15, 0), App.Vector(0, 0, 1), 2.1),
    Part.Circle(App.Vector(-35, 35, 0), App.Vector(0, 0, 1), 2.6),
    Part.Circle(App.Vector(0, 0, 0), App.Vector(0, 0, 1), 8.1),
    Part.LineSegment(App.Vector(26.501121, 5.442725, 0), App.Vector(17.702725, 19.804829, 0)),
    Part.ArcOfCircle(Part.Circle(App.Vector(21.581564, 22.181052, 0), App.Vector(0, 0, 1), 4.548827), math.radians(31.492134), math.radians(211.492134)),
    Part.LineSegment(App.Vector(25.460403, 24.557275, 0), App.Vector(34.258799, 10.195171, 0)),
    Part.ArcOfCircle(Part.Circle(App.Vector(30.37996, 7.818948, 0), App.Vector(0, 0, 1), 4.548827), math.radians(-148.507866), math.radians(31.492134)),
    Part.Circle(App.Vector(0, 30, 0), App.Vector(0, 0, 1), 2.1),
    Part.Circle(App.Vector(35, 35, 0), App.Vector(0, 0, 1), 2.6),
], False)
sketch19.addConstraint([
    Sketcher.Constraint("Coincident", 0, 2, 1, 1),
    Sketcher.Constraint("Coincident", 1, 2, 2, 1),
    Sketcher.Constraint("Coincident", 2, 2, 3, 1),
    Sketcher.Constraint("Coincident", 3, 2, 0, 1),
    Sketcher.Constraint("Tangent", 10, 2, 11, 2),
    Sketcher.Constraint("Tangent", 11, 1, 12, 1),
    Sketcher.Constraint("Tangent", 12, 2, 13, 2),
    Sketcher.Constraint("Tangent", 13, 1, 10, 1),
    Sketcher.Constraint("Vertical", 0),
    Sketcher.Constraint("Horizontal", 1),
    Sketcher.Constraint("Vertical", 2),
    Sketcher.Constraint("Horizontal", 3),
    Sketcher.Constraint("Coincident", 9, 3, -1, 1),
    Sketcher.Constraint("Equal", 4, 6),
    Sketcher.Constraint("Equal", 5, 7),
    Sketcher.Constraint("Equal", 6, 8),
    Sketcher.Constraint("Equal", 11, 13),
    Sketcher.Constraint("Equal", 7, 14),
    Sketcher.Constraint("Equal", 8, 15),
    Sketcher.Constraint("Symmetric", 6, 3, 8, 3, -1, 1),
    Sketcher.Constraint("Symmetric", 4, 3, 15, 3, -1, 1),
    Sketcher.Constraint("Symmetric", 0, 2, 2, 2, -1, 1),
    Sketcher.Constraint("Symmetric", 4, 3, 6, 3, -2),
    Sketcher.Constraint("Symmetric", 5, 3, 7, 3, -2),
    Sketcher.Constraint("PointOnObject", 14, 3, -2),
    Sketcher.Constraint("Equal", 3, 0),
    Sketcher.Constraint("Diameter", 4, Q("5.2 mm")),
    Sketcher.Constraint("Diameter", 5, Q("4.2 mm")),
    Sketcher.Constraint("Diameter", 9, Q("16.2 mm")),
    Sketcher.Constraint("DistanceX", 1, 1, 1, 2, Q("90 mm")),
    Sketcher.Constraint("DistanceX", 4, 3, -1, 1, Q("35 mm")),
    Sketcher.Constraint("DistanceY", 4, 3, -1, 1, Q("35 mm")),
    Sketcher.Constraint("DistanceY", 5, 3, -1, 1, Q("15 mm")),
    Sketcher.Constraint("DistanceY", -1, 1, 14, 3, Q("30 mm")),
    Sketcher.Constraint("Radius", 11, Q("4.548827 mm")),
    Sketcher.Constraint("DistanceX", -1, 1, 12, 2, Q("34.258799 mm")),
    Sketcher.Constraint("DistanceX", 11, 3, 7, 3, Q("4.399198 mm")),
    Sketcher.Constraint("DistanceX", 7, 3, 13, 3, Q("4.399198 mm")),
    Sketcher.Constraint("DistanceY", -1, 1, 11, 3, Q("22.181052 mm")),
    Sketcher.Constraint("DistanceX", -1, 1, 13, 3, Q("30.37996 mm")),
])
pad6 = body.newObject("PartDesign::Pad", "Pad005")
pad6.Profile = sketch19
pad6.Length = 4

sketch20 = body.newObject("Sketcher::SketchObject", "Sketch019")
sketch20.AttachmentSupport = (doc.getObject("XY_Plane"), [""])
sketch20.MapMode = "FlatFace"
sketch20.addGeometry([
    Part.LineSegment(App.Vector(17.702725, 19.804829, 0), App.Vector(26.501121, 5.442725, 0)),
    Part.ArcOfCircle(Part.Circle(App.Vector(30.37996, 7.818948, 0), App.Vector(0, 0, 1), 4.548827), math.radians(-148.507866), math.radians(31.492134)),
    Part.LineSegment(App.Vector(34.258799, 10.195171, 0), App.Vector(25.460403, 24.557275, 0)),
    Part.ArcOfCircle(Part.Circle(App.Vector(21.581564, 22.181052, 0), App.Vector(0, 0, 1), 4.548827), math.radians(31.492134), math.radians(211.492134)),
], False)
sketch20.addConstraint([
    Sketcher.Constraint("Tangent", 0, 2, 1, 1),
    Sketcher.Constraint("Tangent", 1, 2, 2, 1),
    Sketcher.Constraint("Tangent", 2, 2, 3, 1),
    Sketcher.Constraint("Tangent", 3, 2, 0, 1),
    Sketcher.Constraint("Equal", 1, 3),
    Sketcher.Constraint("Radius", 1, Q("4.548827 mm")),
    Sketcher.Constraint("DistanceX", -1, 1, 1, 2, Q("34.258799 mm")),
    Sketcher.Constraint("DistanceX", -1, 1, 1, 3, Q("30.37996 mm")),
    Sketcher.Constraint("DistanceY", -1, 1, 1, 3, Q("7.818948 mm")),
    Sketcher.Constraint("DistanceY", -1, 1, 3, 3, Q("22.181052 mm")),
])
pad7 = body.newObject("PartDesign::Pad", "Pad006")
pad7.Profile = sketch20
pad7.Length = 4

sketch21 = body.newObject("Sketcher::SketchObject", "Sketch020")
sketch21.AttachmentSupport = (doc.getObject("XY_Plane"), [""])
sketch21.MapMode = "FlatFace"
sketch21.addGeometry([
    Part.LineSegment(App.Vector(-19.187214, 24.94091, 0), App.Vector(-31.466176, 0.279206, 0)),
    Part.ArcOfCircle(Part.Circle(App.Vector(-36.575578, 2.823157, 0), App.Vector(0, 0, 1), 5.707686), math.radians(153.531474), math.radians(333.531474)),
    Part.LineSegment(App.Vector(-41.684981, 5.367107, 0), App.Vector(-29.406019, 30.028811, 0)),
    Part.ArcOfCircle(Part.Circle(App.Vector(-24.296617, 27.48486, 0), App.Vector(0, 0, 1), 5.707686), math.radians(-26.468526), math.radians(153.531474)),
], False)
sketch21.addConstraint([
    Sketcher.Constraint("Tangent", 0, 2, 1, 2),
    Sketcher.Constraint("Tangent", 1, 1, 2, 1),
    Sketcher.Constraint("Tangent", 2, 2, 3, 2),
    Sketcher.Constraint("Tangent", 3, 1, 0, 1),
    Sketcher.Constraint("Equal", 1, 3),
    Sketcher.Constraint("Radius", 1, Q("5.707686 mm")),
    Sketcher.Constraint("DistanceY", 0, 2, 1, 1, Q("5.087901 mm")),
    Sketcher.Constraint("DistanceX", 1, 3, -1, 1, Q("36.575578 mm")),
    Sketcher.Constraint("DistanceY", -1, 1, 3, 3, Q("27.48486 mm")),
    Sketcher.Constraint("DistanceX", 2, 2, -1, 1, Q("29.406019 mm")),
])
pocket14 = body.newObject("PartDesign::Pocket", "Pocket013")
pocket14.Profile = sketch21
pocket14.Length = 10
pocket14.Reversed = True

doc.recompute()
